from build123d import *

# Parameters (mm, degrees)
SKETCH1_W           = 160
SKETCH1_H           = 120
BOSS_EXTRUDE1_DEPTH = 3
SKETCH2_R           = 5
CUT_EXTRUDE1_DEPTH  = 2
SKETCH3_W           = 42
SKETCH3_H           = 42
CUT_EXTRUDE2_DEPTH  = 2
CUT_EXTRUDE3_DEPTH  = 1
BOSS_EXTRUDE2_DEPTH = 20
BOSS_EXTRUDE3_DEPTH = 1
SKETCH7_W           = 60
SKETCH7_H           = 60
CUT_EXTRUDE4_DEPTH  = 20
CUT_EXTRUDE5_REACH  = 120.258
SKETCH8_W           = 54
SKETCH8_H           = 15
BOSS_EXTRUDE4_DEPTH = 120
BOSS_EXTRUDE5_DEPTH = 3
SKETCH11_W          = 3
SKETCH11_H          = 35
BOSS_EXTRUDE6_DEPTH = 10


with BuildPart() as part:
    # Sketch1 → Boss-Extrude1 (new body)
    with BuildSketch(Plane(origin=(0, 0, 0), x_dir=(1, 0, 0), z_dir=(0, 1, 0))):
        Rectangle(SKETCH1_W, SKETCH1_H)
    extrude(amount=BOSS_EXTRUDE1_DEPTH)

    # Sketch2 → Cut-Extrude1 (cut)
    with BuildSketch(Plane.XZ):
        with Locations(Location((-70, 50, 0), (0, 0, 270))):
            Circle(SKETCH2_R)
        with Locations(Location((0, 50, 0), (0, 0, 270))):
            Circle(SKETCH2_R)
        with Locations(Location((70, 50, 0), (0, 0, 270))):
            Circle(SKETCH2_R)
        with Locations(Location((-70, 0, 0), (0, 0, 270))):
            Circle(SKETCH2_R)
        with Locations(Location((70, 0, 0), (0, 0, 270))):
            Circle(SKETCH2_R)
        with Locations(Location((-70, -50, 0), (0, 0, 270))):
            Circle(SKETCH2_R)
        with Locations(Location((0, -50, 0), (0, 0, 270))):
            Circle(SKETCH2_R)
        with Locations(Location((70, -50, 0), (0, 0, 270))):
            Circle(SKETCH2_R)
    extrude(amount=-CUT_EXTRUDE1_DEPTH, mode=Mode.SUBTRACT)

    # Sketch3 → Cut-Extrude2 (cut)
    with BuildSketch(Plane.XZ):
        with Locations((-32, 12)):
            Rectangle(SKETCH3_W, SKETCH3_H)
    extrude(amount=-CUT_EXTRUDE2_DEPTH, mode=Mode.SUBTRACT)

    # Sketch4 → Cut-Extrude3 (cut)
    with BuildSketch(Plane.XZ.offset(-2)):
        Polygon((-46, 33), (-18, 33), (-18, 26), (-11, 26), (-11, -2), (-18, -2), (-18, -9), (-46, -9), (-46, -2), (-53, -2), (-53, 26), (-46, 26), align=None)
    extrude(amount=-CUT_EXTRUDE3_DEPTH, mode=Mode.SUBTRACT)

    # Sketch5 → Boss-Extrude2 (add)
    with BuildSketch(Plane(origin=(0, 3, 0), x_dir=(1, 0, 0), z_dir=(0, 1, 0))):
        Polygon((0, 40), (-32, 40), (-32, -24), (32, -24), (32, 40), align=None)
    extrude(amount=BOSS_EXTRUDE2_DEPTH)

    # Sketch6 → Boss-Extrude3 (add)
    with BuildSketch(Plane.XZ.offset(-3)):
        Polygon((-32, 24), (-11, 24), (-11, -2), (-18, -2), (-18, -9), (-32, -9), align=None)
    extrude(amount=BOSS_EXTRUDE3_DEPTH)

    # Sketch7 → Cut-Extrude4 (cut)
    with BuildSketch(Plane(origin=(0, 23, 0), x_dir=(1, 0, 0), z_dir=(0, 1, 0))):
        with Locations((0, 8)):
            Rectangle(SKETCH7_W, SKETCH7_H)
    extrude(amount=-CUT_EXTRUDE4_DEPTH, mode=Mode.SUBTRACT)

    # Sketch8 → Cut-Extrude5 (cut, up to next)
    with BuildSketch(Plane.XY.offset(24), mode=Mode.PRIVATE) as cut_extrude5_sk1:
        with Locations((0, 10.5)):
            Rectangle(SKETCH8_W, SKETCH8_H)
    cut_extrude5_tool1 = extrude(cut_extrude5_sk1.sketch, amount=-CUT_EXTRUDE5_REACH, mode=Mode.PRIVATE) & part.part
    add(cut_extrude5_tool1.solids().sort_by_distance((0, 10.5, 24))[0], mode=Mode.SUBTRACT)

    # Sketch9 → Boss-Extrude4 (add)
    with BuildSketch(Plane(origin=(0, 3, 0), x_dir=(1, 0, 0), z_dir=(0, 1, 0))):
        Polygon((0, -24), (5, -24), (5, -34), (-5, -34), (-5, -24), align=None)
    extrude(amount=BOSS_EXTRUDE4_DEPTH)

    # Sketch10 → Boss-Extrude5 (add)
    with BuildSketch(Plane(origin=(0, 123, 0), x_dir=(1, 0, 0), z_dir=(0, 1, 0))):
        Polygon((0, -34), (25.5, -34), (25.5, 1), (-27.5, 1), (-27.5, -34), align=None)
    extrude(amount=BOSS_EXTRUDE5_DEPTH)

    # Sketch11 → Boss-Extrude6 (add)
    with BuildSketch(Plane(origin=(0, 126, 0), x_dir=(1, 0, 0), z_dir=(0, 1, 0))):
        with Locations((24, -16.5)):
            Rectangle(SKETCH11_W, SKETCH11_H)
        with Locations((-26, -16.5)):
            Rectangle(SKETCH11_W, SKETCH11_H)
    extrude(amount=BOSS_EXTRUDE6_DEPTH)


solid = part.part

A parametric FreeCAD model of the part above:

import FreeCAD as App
import Part
import Sketcher

V = App.Vector


def add_polygon(sketch, points):
    """Adds a closed chain of lines whose ends are joined by coincident constraints."""
    first, n = sketch.GeometryCount, len(points)
    for a, b in zip(points, points[1:] + points[:1]):
        sketch.addGeometry(Part.LineSegment(App.Vector(*a, 0), App.Vector(*b, 0)), False)
    for i in range(n):
        sketch.addConstraint(Sketcher.Constraint("Coincident", first + i, 2, first + (i + 1) % n, 1))

doc = App.newDocument("Part")
params = doc.addObject("Spreadsheet::Sheet", "Params")
for row, (alias, value) in enumerate([
    ("sketch1_width", "160 mm"),
    ("sketch1_height", "120 mm"),
    ("pad1_length", "3 mm"),
    ("sketch2_diameter", "10 mm"),
    ("pocket1_length", "2 mm"),
    ("sketch3_width", "42 mm"),
    ("pocket2_length", "2 mm"),
    ("sketch4_width", "28 mm"),
    ("sketch4_width2", "7 mm"),
    ("pocket3_length", "1 mm"),
    ("sketch5_width", "64 mm"),
    ("pad2_length", "20 mm"),
    ("sketch6_width", "21 mm"),
    ("sketch6_width2", "14 mm"),
    ("sketch6_height", "33 mm"),
    ("pad3_length", "1 mm"),
    ("sketch7_width", "60 mm"),
    ("pocket4_length", "20 mm"),
    ("sketch8_width", "54 mm"),
    ("sketch8_height", "15 mm"),
    ("sketch9_width", "10 mm"),
    ("pad4_length", "120 mm"),
    ("sketch10_width", "53 mm"),
    ("sketch10_height", "35 mm"),
    ("pad5_length", "3 mm"),
    ("sketch11_width", "3 mm"),
    ("sketch11_height", "35 mm"),
    ("pad6_length", "10 mm"),
], start=1):
    params.set(f"A{row}", alias)
    params.set(f"B{row}", "=" + value)
    params.setAlias(f"B{row}", alias)

body = doc.addObject("PartDesign::Body", "Body")

sketch1 = doc.addObject("Sketcher::SketchObject", "Sketch")
body.addObject(sketch1)
sketch1.AttachmentSupport = (doc.XZ_Plane, [""])
sketch1.MapMode = "FlatFace"
add_polygon(sketch1, [(-80, -60), (-80, 60), (80, 60), (80, -60)])
sketch1.addConstraint(Sketcher.Constraint("Vertical", 0))
sketch1.addConstraint(Sketcher.Constraint("Horizontal", 1))
sketch1.addConstraint(Sketcher.Constraint("Vertical", 2))
sketch1.addConstraint(Sketcher.Constraint("Horizontal", 3))
sketch1.addConstraint(Sketcher.Constraint("Symmetric", 0, 2, 2, 2, -1, 1))
sketch1.addConstraint(Sketcher.Constraint("DistanceX", 1, 1, 1, 2, 160.0))
sketch1.addConstraint(Sketcher.Constraint("DistanceY", 0, 1, 0, 2, 120.0))
sketch1.setExpression("Constraints[9]", "Params.sketch1_width")
sketch1.setExpression("Constraints[10]", "Params.sketch1_height")
pad1 = doc.addObject("PartDesign::Pad", "Pad")
body.addObject(pad1)
pad1.Profile = sketch1
pad1.setExpression("Length", "Params.pad1_length")
pad1.Reversed = True

sketch2 = doc.addObject("Sketcher::SketchObject", "Sketch001")
body.addObject(sketch2)
sketch2.AttachmentSupport = (doc.XZ_Plane, [""])
sketch2.MapMode = "FlatFace"
sketch2.addGeometry(Part.Circle(V(-70, 50, 0), V(0, 0, 1), 5), False)
sketch2.addGeometry(Part.Circle(V(0, 50, 0), V(0, 0, 1), 5), False)
sketch2.addGeometry(Part.Circle(V(70, 50, 0), V(0, 0, 1), 5), False)
sketch2.addGeometry(Part.Circle(V(-70, 0, 0), V(0, 0, 1), 5), False)
sketch2.addGeometry(Part.Circle(V(70, 0, 0), V(0, 0, 1), 5), False)
sketch2.addGeometry(Part.Circle(V(-70, -50, 0), V(0, 0, 1), 5), False)
sketch2.addGeometry(Part.Circle(V(0, -50, 0), V(0, 0, 1), 5), False)
sketch2.addGeometry(Part.Circle(V(70, -50, 0), V(0, 0, 1), 5), False)
sketch2.addConstraint(Sketcher.Constraint("Equal", 0, 1))
sketch2.addConstraint(Sketcher.Constraint("Equal", 1, 2))
sketch2.addConstraint(Sketcher.Constraint("Equal", 2, 3))
sketch2.addConstraint(Sketcher.Constraint("Equal", 3, 4))
sketch2.addConstraint(Sketcher.Constraint("Equal", 4, 5))
sketch2.addConstraint(Sketcher.Constraint("Equal", 5, 6))
sketch2.addConstraint(Sketcher.Constraint("Equal", 6, 7))
sketch2.addConstraint(Sketcher.Constraint("Symmetric", 3, 3, 4, 3, -1, 1))
sketch2.addConstraint(Sketcher.Constraint("Symmetric", 2, 3, 5, 3, -1, 1))
sketch2.addConstraint(Sketcher.Constraint("Symmetric", 1, 3, 6, 3, -1, 1))
sketch2.addConstraint(Sketcher.Constraint("Symmetric", 0, 3, 7, 3, -1, 1))
sketch2.addConstraint(Sketcher.Constraint("Symmetric", 0, 3, 2, 3, -2))
sketch2.addConstraint(Sketcher.Constraint("PointOnObject", 1, 3, -2))
sketch2.addConstraint(Sketcher.Constraint("PointOnObject", 3, 3, -1))
sketch2.addConstraint(Sketcher.Constraint("Horizontal", 0, 3, 1, 3))
sketch2.addConstraint(Sketcher.Constraint("Vertical", 0, 3, 3, 3))
sketch2.addConstraint(Sketcher.Constraint("Diameter", 0, 10.0))
sketch2.addConstraint(Sketcher.Constraint("DistanceX", 0, 3, -1, 1, 70.0))
sketch2.addConstraint(Sketcher.Constraint("DistanceY", -1, 1, 0, 3, 50.0))
sketch2.setExpression("Constraints[16]", "Params.sketch2_diameter")
pocket1 = doc.addObject("PartDesign::Pocket", "Pocket")
body.addObject(pocket1)
pocket1.Profile = sketch2
pocket1.setExpression("Length", "Params.pocket1_length")

sketch3 = doc.addObject("Sketcher::SketchObject", "Sketch002")
body.addObject(sketch3)
sketch3.AttachmentSupport = (doc.XZ_Plane, [""])
sketch3.MapMode = "FlatFace"
add_polygon(sketch3, [(-53, 33), (-53, -9), (-11, -9), (-11, 33)])
sketch3.addConstraint(Sketcher.Constraint("Vertical", 0))
sketch3.addConstraint(Sketcher.Constraint("Horizontal", 1))
sketch3.addConstraint(Sketcher.Constraint("Vertical", 2))
sketch3.addConstraint(Sketcher.Constraint("Horizontal", 3))
sketch3.addConstraint(Sketcher.Constraint("Equal", 3, 0))
sketch3.addConstraint(Sketcher.Constraint("DistanceX", 1, 1, 1, 2, 42.0))
sketch3.addConstraint(Sketcher.Constraint("DistanceX", 0, 2, -1, 1, 53.0))
sketch3.addConstraint(Sketcher.Constraint("DistanceY", 0, 2, -1, 1, 9.0))
sketch3.setExpression("Constraints[9]", "Params.sketch3_width")
pocket2 = doc.addObject("PartDesign::Pocket", "Pocket001")
body.addObject(pocket2)
pocket2.Profile = sketch3
pocket2.setExpression("Length", "Params.pocket2_length")

sketch4 = doc.addObject("Sketcher::SketchObject", "Sketch003")
body.addObject(sketch4)
sketch4.AttachmentSupport = (doc.XZ_Plane, [""])
sketch4.MapMode = "FlatFace"
sketch4.AttachmentOffset = App.Placement(V(0, 0, -2), App.Rotation())
add_polygon(sketch4, [(-18, 33), (-46, 33), (-46, 26), (-53, 26), (-53, -2), (-46, -2), (-46, -9), (-18, -9), (-18, -2), (-11, -2), (-11, 26), (-18, 26)])
sketch4.addConstraint(Sketcher.Constraint("Horizontal", 0))
sketch4.addConstraint(Sketcher.Constraint("Vertical", 1))
sketch4.addConstraint(Sketcher.Constraint("Horizontal", 2))
sketch4.addConstraint(Sketcher.Constraint("Vertical", 3))
sketch4.addConstraint(Sketcher.Constraint("Horizontal", 4))
sketch4.addConstraint(Sketcher.Constraint("Vertical", 5))
sketch4.addConstraint(Sketcher.Constraint("Horizontal", 6))
sketch4.addConstraint(Sketcher.Constraint("Vertical", 7))
sketch4.addConstraint(Sketcher.Constraint("Horizontal", 8))
sketch4.addConstraint(Sketcher.Constraint("Vertical", 9))
sketch4.addConstraint(Sketcher.Constraint("Horizontal", 10))
sketch4.addConstraint(Sketcher.Constraint("Vertical", 11))
sketch4.addConstraint(Sketcher.Constraint("Horizontal", 4, 2, 7, 2))
sketch4.addConstraint(Sketcher.Constraint("Horizontal", 2, 2, 9, 2))
sketch4.addConstraint(Sketcher.Constraint("Vertical", 1, 2, 4, 2))
sketch4.addConstraint(Sketcher.Constraint("Vertical", 7, 2, 10, 2))
sketch4.addConstraint(Sketcher.Constraint("Equal", 4, 8))
sketch4.addConstraint(Sketcher.Constraint("Equal", 10, 1))
sketch4.addConstraint(Sketcher.Constraint("Equal", 6, 3))
sketch4.addConstraint(Sketcher.Constraint("Equal", 1, 5))
sketch4.addConstraint(Sketcher.Constraint("DistanceX", 0, 2, 0, 1, 28.0))
sketch4.addConstraint(Sketcher.Constraint("DistanceX", 2, 2, 2, 1, 7.0))
sketch4.addConstraint(Sketcher.Constraint("DistanceX", 0, 2, -1, 1, 46.0))
sketch4.addConstraint(Sketcher.Constraint("DistanceY", -1, 1, 0, 2, 33.0))
sketch4.setExpression("Constraints[32]", "Params.sketch4_width")
sketch4.setExpression("Constraints[33]", "Params.sketch4_width2")
pocket3 = doc.addObject("PartDesign::Pocket", "Pocket002")
body.addObject(pocket3)
pocket3.Profile = sketch4
pocket3.setExpression("Length", "Params.pocket3_length")

sketch5 = doc.addObject("Sketcher::SketchObject", "Sketch004")
body.addObject(sketch5)
sketch5.AttachmentSupport = (doc.XZ_Plane, [""])
sketch5.MapMode = "FlatFace"
sketch5.AttachmentOffset = App.Placement(V(0, 0, -3), App.Rotation())
add_polygon(sketch5, [(-32, -40), (-32, 24), (32, 24), (32, -40)])
sketch5.addConstraint(Sketcher.Constraint("Vertical", 0))
sketch5.addConstraint(Sketcher.Constraint("Horizontal", 1))
sketch5.addConstraint(Sketcher.Constraint("Vertical", 2))
sketch5.addConstraint(Sketcher.Constraint("Horizontal", 3))
sketch5.addConstraint(Sketcher.Constraint("Equal", 3, 0))
sketch5.addConstraint(Sketcher.Constraint("DistanceX", 1, 1, 1, 2, 64.0))
sketch5.addConstraint(Sketcher.Constraint("DistanceX", 0, 2, -1, 1, 32.0))
sketch5.addConstraint(Sketcher.Constraint("DistanceY", -1, 1, 0, 2, 24.0))
sketch5.setExpression("Constraints[9]", "Params.sketch5_width")
pad2 = doc.addObject("PartDesign::Pad", "Pad001")
body.addObject(pad2)
pad2.Profile = sketch5
pad2.setExpression("Length", "Params.pad2_length")
pad2.Reversed = True

sketch6 = doc.addObject("Sketcher::SketchObject", "Sketch005")
body.addObject(sketch6)
sketch6.AttachmentSupport = (doc.XZ_Plane, [""])
sketch6.MapMode = "FlatFace"
sketch6.AttachmentOffset = App.Placement(V(0, 0, -3), App.Rotation())
add_polygon(sketch6, [(-11, 24), (-32, 24), (-32, -9), (-18, -9), (-18, -2), (-11, -2)])
sketch6.addConstraint(Sketcher.Constraint("Horizontal", 0))
sketch6.addConstraint(Sketcher.Constraint("Vertical", 1))
sketch6.addConstraint(Sketcher.Constraint("Horizontal", 2))
sketch6.addConstraint(Sketcher.Constraint("Vertical", 3))
sketch6.addConstraint(Sketcher.Constraint("Horizontal", 4))
sketch6.addConstraint(Sketcher.Constraint("Vertical", 5))
sketch6.addConstraint(Sketcher.Constraint("Equal", 4, 3))
sketch6.addConstraint(Sketcher.Constraint("DistanceX", 0, 2, 0, 1, 21.0))
sketch6.addConstraint(Sketcher.Constraint("DistanceX", 2, 1, 2, 2, 14.0))
sketch6.addConstraint(Sketcher.Constraint("DistanceY", 1, 2, 1, 1, 33.0))
sketch6.addConstraint(Sketcher.Constraint("DistanceX", 0, 2, -1, 1, 32.0))
sketch6.addConstraint(Sketcher.Constraint("DistanceY", -1, 1, 0, 2, 24.0))
sketch6.setExpression("Constraints[13]", "Params.sketch6_width")
sketch6.setExpression("Constraints[14]", "Params.sketch6_width2")
sketch6.setExpression("Constraints[15]", "Params.sketch6_height")
pad3 = doc.addObject("PartDesign::Pad", "Pad002")
body.addObject(pad3)
pad3.Profile = sketch6
pad3.setExpression("Length", "Params.pad3_length")

sketch7 = doc.addObject("Sketcher::SketchObject", "Sketch006")
body.addObject(sketch7)
sketch7.AttachmentSupport = (doc.XZ_Plane, [""])
sketch7.MapMode = "FlatFace"
sketch7.AttachmentOffset = App.Placement(V(0, 0, -23), App.Rotation())
add_polygon(sketch7, [(-30, -38), (-30, 22), (30, 22), (30, -38)])
sketch7.addConstraint(Sketcher.Constraint("Vertical", 0))
sketch7.addConstraint(Sketcher.Constraint("Horizontal", 1))
sketch7.addConstraint(Sketcher.Constraint("Vertical", 2))
sketch7.addConstraint(Sketcher.Constraint("Horizontal", 3))
sketch7.addConstraint(Sketcher.Constraint("Equal", 3, 0))
sketch7.addConstraint(Sketcher.Constraint("DistanceX", 1, 1, 1, 2, 60.0))
sketch7.addConstraint(Sketcher.Constraint("DistanceX", 0, 2, -1, 1, 30.0))
sketch7.addConstraint(Sketcher.Constraint("DistanceY", -1, 1, 0, 2, 22.0))
sketch7.setExpression("Constraints[9]", "Params.sketch7_width")
pocket4 = doc.addObject("PartDesign::Pocket", "Pocket003")
body.addObject(pocket4)
pocket4.Profile = sketch7
pocket4.setExpression("Length", "Params.pocket4_length")
pocket4.Reversed = True

sketch8 = doc.addObject("Sketcher::SketchObject", "Sketch007")
body.addObject(sketch8)
sketch8.AttachmentSupport = (doc.XY_Plane, [""])
sketch8.MapMode = "FlatFace"
sketch8.AttachmentOffset = App.Placement(V(0, 0, 24), App.Rotation())
add_polygon(sketch8, [(-27, 18), (-27, 3), (27, 3), (27, 18)])
sketch8.addConstraint(Sketcher.Constraint("Vertical", 0))
sketch8.addConstraint(Sketcher.Constraint("Horizontal", 1))
sketch8.addConstraint(Sketcher.Constraint("Vertical", 2))
sketch8.addConstraint(Sketcher.Constraint("Horizontal", 3))
sketch8.addConstraint(Sketcher.Constraint("DistanceX", 1, 1, 1, 2, 54.0))
sketch8.addConstraint(Sketcher.Constraint("DistanceY", 0, 2, 0, 1, 15.0))
sketch8.addConstraint(Sketcher.Constraint("DistanceX", 0, 2, -1, 1, 27.0))
sketch8.addConstraint(Sketcher.Constraint("DistanceY", -1, 1, 0, 2, 3.0))
sketch8.setExpression("Constraints[8]", "Params.sketch8_width")
sketch8.setExpression("Constraints[9]", "Params.sketch8_height")
pocket5 = doc.addObject("PartDesign::Pocket", "Pocket004")
body.addObject(pocket5)
pocket5.Profile = sketch8
pocket5.Type = "UpToFirst"

sketch9 = doc.addObject("Sketcher::SketchObject", "Sketch008")
body.addObject(sketch9)
sketch9.AttachmentSupport = (doc.XZ_Plane, [""])
sketch9.MapMode = "FlatFace"
sketch9.AttachmentOffset = App.Placement(V(0, 0, -3), App.Rotation())
add_polygon(sketch9, [(5, 24), (-5, 24), (-5, 34), (5, 34)])
sketch9.addConstraint(Sketcher.Constraint("Horizontal", 0))
sketch9.addConstraint(Sketcher.Constraint("Vertical", 1))
sketch9.addConstraint(Sketcher.Constraint("Horizontal", 2))
sketch9.addConstraint(Sketcher.Constraint("Vertical", 3))
sketch9.addConstraint(Sketcher.Constraint("Equal", 2, 1))
sketch9.addConstraint(Sketcher.Constraint("DistanceX", 0, 2, 0, 1, 10.0))
sketch9.addConstraint(Sketcher.Constraint("DistanceX", 0, 2, -1, 1, 5.0))
sketch9.addConstraint(Sketcher.Constraint("DistanceY", -1, 1, 0, 2, 24.0))
sketch9.setExpression("Constraints[9]", "Params.sketch9_width")
pad4 = doc.addObject("PartDesign::Pad", "Pad003")
body.addObject(pad4)
pad4.Profile = sketch9
pad4.setExpression("Length", "Params.pad4_length")
pad4.Reversed = True

sketch10 = doc.addObject("Sketcher::SketchObject", "Sketch009")
body.addObject(sketch10)
sketch10.AttachmentSupport = (doc.XZ_Plane, [""])
sketch10.MapMode = "FlatFace"
sketch10.AttachmentOffset = App.Placement(V(0, 0, -123), App.Rotation())
add_polygon(sketch10, [(26, 34), (26, -1), (-28, -1), (-28, 34)])
sketch10.addConstraint(Sketcher.Constraint("Vertical", 0))
sketch10.addConstraint(Sketcher.Constraint("Horizontal", 1))
sketch10.addConstraint(Sketcher.Constraint("Vertical", 2))
sketch10.addConstraint(Sketcher.Constraint("Horizontal", 3))
sketch10.addConstraint(Sketcher.Constraint("DistanceX", 1, 2, 1, 1, 53.0))
sketch10.addConstraint(Sketcher.Constraint("DistanceY", 0, 2, 0, 1, 35.0))
sketch10.addConstraint(Sketcher.Constraint("DistanceY", 0, 2, -1, 1, 1.0))
sketch10.addConstraint(Sketcher.Constraint("DistanceX", -1, 1, 0, 2, 25.5))
sketch10.setExpression("Constraints[8]", "Params.sketch10_width")
sketch10.setExpression("Constraints[9]", "Params.sketch10_height")
pad5 = doc.addObject("PartDesign::Pad", "Pad004")
body.addObject(pad5)
pad5.Profile = sketch10
pad5.setExpression("Length", "Params.pad5_length")
pad5.Reversed = True

sketch11 = doc.addObject("Sketcher::SketchObject", "Sketch010")
body.addObject(sketch11)
sketch11.AttachmentSupport = (doc.XZ_Plane, [""])
sketch11.MapMode = "FlatFace"
sketch11.AttachmentOffset = App.Placement(V(0, 0, -126), App.Rotation())
add_polygon(sketch11, [(22.5, -1), (22.5, 34), (25.5, 34), (25.5, -1)])
add_polygon(sketch11, [(-27.5, -1), (-27.5, 34), (-24.5, 34), (-24.5, -1)])
sketch11.addConstraint(Sketcher.Constraint("Vertical", 0))
sketch11.addConstraint(Sketcher.Constraint("Horizontal", 1))
sketch11.addConstraint(Sketcher.Constraint("Vertical", 2))
sketch11.addConstraint(Sketcher.Constraint("Horizontal", 3))
sketch11.addConstraint(Sketcher.Constraint("Vertical", 4))
sketch11.addConstraint(Sketcher.Constraint("Horizontal", 5))
sketch11.addConstraint(Sketcher.Constraint("Vertical", 6))
sketch11.addConstraint(Sketcher.Constraint("Horizontal", 7))
sketch11.addConstraint(Sketcher.Constraint("Horizontal", 1, 2, 4, 2))
sketch11.addConstraint(Sketcher.Constraint("Horizontal", 3, 2, 6, 2))
sketch11.addConstraint(Sketcher.Constraint("Equal", 3, 5))
sketch11.addConstraint(Sketcher.Constraint("DistanceX", 1, 1, 1, 2, 3.0))
sketch11.addConstraint(Sketcher.Constraint("DistanceY", 0, 1, 0, 2, 35.0))
sketch11.addConstraint(Sketcher.Constraint("DistanceY", -1, 1, 0, 2, 34.0))
sketch11.addConstraint(Sketcher.Constraint("DistanceX", 4, 2, 0, 2, 50.0))
sketch11.addConstraint(Sketcher.Constraint("DistanceX", -1, 1, 0, 2, 22.5))
sketch11.setExpression("Constraints[19]", "Params.sketch11_width")
sketch11.setExpression("Constraints[20]", "Params.sketch11_height")
pad6 = doc.addObject("PartDesign::Pad", "Pad005")
body.addObject(pad6)
pad6.Profile = sketch11
pad6.setExpression("Length", "Params.pad6_length")
pad6.Reversed = True

doc.recompute()
